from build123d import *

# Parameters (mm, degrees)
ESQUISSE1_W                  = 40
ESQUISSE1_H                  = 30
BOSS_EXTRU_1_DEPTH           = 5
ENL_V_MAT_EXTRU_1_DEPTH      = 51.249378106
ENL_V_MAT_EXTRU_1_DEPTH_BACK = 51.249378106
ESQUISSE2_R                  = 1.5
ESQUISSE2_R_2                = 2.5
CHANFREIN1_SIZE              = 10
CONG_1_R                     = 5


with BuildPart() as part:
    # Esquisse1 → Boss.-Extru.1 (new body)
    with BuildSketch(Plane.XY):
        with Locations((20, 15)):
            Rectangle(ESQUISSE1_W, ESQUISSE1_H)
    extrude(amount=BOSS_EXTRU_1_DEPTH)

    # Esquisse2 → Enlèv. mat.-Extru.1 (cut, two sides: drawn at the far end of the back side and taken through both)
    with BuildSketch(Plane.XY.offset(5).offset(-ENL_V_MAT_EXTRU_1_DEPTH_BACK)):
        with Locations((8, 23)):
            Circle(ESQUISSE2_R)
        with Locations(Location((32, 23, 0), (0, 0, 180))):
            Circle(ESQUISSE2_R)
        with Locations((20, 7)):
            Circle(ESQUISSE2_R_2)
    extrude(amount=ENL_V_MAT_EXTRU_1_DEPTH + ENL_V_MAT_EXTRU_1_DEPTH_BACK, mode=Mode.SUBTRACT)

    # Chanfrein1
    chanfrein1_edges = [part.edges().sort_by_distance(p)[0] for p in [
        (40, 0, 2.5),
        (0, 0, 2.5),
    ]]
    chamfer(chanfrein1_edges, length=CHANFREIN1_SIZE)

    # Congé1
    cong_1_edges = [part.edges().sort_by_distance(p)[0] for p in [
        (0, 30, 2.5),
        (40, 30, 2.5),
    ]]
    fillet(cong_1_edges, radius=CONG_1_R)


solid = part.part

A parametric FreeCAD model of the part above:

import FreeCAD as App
import Part
import Sketcher


def edges_at(feature, points):
    """Names of the edges that pass closest to the given points."""
    edges = feature.Shape.Edges
    near = lambda p: min(range(len(edges)), key=lambda i: edges[i].distToShape(Part.Vertex(*p))[0])
    return sorted({f"Edge{near(p) + 1}" for p in points})


def add_polygon(sketch, points):
    """Adds a closed chain of lines whose ends are joined by coincident constraints."""
    first, n = sketch.GeometryCount, len(points)
    for a, b in zip(points, points[1:] + points[:1]):
        sketch.addGeometry(Part.LineSegment(App.Vector(*a, 0), App.Vector(*b, 0)), False)
    for i in range(n):
        sketch.addConstraint(Sketcher.Constraint("Coincident", first + i, 2, first + (i + 1) % n, 1))

doc = App.newDocument("Part")
body = doc.addObject("PartDesign::Body", "Body")

# Sketch on XY plane
sketch1 = body.newObject("Sketcher::SketchObject", "Sketch")
sketch1.AttachmentSupport = (doc.getObject("XY_Plane"), [""])
sketch1.MapMode = "FlatFace"
add_polygon(sketch1, [(0, 30), (0, 0), (40, 0), (40, 30)])  # lines 0-3
sketch1.addConstraint([
    Sketcher.Constraint("Vertical", 0),
    Sketcher.Constraint("Horizontal", 1),
    Sketcher.Constraint("Vertical", 2),
    Sketcher.Constraint("Horizontal", 3),
    Sketcher.Constraint("Coincident", 0, 2, -1, 1),
    Sketcher.Constraint("DistanceX", 1, 1, 1, 2, 40.0),
    Sketcher.Constraint("DistanceY", 0, 2, 0, 1, 30.0),
])
pad1 = body.newObject("PartDesign::Pad", "Pad")
pad1.Profile = sketch1
pad1.Length = 5

# Sketch on XY plane
sketch2 = body.newObject("Sketcher::SketchObject", "Sketch001")
sketch2.AttachmentSupport = (doc.getObject("XY_Plane"), [""])
sketch2.MapMode = "FlatFace"
sketch2.AttachmentOffset = App.Placement(App.Vector(0, 0, 5), App.Rotation())
sketch2.addGeometry([
    Part.Circle(App.Vector(8, 23, 0), App.Vector(0, 0, 1), 1.5),
    Part.Circle(App.Vector(32, 23, 0), App.Vector(0, 0, 1), 1.5),
    Part.Circle(App.Vector(20, 7, 0), App.Vector(0, 0, 1), 2.5),
], False)
sketch2.addConstraint([
    Sketcher.Constraint("Equal", 0, 1),
    Sketcher.Constraint("Horizontal", 0, 3, 1, 3),
    Sketcher.Constraint("Diameter", 0, 3.0),
    Sketcher.Constraint("Diameter", 2, 5.0),
    Sketcher.Constraint("DistanceX", -1, 1, 0, 3, 8.0),
    Sketcher.Constraint("DistanceY", -1, 1, 0, 3, 23.0),
    Sketcher.Constraint("DistanceX", -1, 1, 1, 3, 32.0),
    Sketcher.Constraint("DistanceX", -1, 1, 2, 3, 20.0),
    Sketcher.Constraint("DistanceY", -1, 1, 2, 3, 7.0),
])
pocket1 = body.newObject("PartDesign::Pocket", "Pocket")
pocket1.Profile = sketch2
pocket1.Type = "ThroughAll"
pocket1.Midplane = True
doc.recompute()

chamfer = body.newObject("PartDesign::Chamfer", "Chamfer")
chamfer.Base = (pocket1, edges_at(pocket1, [(40, 0, 2.5), (0, 0, 2.5)]))
chamfer.Size = 10
doc.recompute()

fillet = body.newObject("PartDesign::Fillet", "Fillet")
fillet.Base = (chamfer, edges_at(chamfer, [(0, 30, 2.5), (40, 30, 2.5)]))
fillet.Radius = 5

doc.recompute()
